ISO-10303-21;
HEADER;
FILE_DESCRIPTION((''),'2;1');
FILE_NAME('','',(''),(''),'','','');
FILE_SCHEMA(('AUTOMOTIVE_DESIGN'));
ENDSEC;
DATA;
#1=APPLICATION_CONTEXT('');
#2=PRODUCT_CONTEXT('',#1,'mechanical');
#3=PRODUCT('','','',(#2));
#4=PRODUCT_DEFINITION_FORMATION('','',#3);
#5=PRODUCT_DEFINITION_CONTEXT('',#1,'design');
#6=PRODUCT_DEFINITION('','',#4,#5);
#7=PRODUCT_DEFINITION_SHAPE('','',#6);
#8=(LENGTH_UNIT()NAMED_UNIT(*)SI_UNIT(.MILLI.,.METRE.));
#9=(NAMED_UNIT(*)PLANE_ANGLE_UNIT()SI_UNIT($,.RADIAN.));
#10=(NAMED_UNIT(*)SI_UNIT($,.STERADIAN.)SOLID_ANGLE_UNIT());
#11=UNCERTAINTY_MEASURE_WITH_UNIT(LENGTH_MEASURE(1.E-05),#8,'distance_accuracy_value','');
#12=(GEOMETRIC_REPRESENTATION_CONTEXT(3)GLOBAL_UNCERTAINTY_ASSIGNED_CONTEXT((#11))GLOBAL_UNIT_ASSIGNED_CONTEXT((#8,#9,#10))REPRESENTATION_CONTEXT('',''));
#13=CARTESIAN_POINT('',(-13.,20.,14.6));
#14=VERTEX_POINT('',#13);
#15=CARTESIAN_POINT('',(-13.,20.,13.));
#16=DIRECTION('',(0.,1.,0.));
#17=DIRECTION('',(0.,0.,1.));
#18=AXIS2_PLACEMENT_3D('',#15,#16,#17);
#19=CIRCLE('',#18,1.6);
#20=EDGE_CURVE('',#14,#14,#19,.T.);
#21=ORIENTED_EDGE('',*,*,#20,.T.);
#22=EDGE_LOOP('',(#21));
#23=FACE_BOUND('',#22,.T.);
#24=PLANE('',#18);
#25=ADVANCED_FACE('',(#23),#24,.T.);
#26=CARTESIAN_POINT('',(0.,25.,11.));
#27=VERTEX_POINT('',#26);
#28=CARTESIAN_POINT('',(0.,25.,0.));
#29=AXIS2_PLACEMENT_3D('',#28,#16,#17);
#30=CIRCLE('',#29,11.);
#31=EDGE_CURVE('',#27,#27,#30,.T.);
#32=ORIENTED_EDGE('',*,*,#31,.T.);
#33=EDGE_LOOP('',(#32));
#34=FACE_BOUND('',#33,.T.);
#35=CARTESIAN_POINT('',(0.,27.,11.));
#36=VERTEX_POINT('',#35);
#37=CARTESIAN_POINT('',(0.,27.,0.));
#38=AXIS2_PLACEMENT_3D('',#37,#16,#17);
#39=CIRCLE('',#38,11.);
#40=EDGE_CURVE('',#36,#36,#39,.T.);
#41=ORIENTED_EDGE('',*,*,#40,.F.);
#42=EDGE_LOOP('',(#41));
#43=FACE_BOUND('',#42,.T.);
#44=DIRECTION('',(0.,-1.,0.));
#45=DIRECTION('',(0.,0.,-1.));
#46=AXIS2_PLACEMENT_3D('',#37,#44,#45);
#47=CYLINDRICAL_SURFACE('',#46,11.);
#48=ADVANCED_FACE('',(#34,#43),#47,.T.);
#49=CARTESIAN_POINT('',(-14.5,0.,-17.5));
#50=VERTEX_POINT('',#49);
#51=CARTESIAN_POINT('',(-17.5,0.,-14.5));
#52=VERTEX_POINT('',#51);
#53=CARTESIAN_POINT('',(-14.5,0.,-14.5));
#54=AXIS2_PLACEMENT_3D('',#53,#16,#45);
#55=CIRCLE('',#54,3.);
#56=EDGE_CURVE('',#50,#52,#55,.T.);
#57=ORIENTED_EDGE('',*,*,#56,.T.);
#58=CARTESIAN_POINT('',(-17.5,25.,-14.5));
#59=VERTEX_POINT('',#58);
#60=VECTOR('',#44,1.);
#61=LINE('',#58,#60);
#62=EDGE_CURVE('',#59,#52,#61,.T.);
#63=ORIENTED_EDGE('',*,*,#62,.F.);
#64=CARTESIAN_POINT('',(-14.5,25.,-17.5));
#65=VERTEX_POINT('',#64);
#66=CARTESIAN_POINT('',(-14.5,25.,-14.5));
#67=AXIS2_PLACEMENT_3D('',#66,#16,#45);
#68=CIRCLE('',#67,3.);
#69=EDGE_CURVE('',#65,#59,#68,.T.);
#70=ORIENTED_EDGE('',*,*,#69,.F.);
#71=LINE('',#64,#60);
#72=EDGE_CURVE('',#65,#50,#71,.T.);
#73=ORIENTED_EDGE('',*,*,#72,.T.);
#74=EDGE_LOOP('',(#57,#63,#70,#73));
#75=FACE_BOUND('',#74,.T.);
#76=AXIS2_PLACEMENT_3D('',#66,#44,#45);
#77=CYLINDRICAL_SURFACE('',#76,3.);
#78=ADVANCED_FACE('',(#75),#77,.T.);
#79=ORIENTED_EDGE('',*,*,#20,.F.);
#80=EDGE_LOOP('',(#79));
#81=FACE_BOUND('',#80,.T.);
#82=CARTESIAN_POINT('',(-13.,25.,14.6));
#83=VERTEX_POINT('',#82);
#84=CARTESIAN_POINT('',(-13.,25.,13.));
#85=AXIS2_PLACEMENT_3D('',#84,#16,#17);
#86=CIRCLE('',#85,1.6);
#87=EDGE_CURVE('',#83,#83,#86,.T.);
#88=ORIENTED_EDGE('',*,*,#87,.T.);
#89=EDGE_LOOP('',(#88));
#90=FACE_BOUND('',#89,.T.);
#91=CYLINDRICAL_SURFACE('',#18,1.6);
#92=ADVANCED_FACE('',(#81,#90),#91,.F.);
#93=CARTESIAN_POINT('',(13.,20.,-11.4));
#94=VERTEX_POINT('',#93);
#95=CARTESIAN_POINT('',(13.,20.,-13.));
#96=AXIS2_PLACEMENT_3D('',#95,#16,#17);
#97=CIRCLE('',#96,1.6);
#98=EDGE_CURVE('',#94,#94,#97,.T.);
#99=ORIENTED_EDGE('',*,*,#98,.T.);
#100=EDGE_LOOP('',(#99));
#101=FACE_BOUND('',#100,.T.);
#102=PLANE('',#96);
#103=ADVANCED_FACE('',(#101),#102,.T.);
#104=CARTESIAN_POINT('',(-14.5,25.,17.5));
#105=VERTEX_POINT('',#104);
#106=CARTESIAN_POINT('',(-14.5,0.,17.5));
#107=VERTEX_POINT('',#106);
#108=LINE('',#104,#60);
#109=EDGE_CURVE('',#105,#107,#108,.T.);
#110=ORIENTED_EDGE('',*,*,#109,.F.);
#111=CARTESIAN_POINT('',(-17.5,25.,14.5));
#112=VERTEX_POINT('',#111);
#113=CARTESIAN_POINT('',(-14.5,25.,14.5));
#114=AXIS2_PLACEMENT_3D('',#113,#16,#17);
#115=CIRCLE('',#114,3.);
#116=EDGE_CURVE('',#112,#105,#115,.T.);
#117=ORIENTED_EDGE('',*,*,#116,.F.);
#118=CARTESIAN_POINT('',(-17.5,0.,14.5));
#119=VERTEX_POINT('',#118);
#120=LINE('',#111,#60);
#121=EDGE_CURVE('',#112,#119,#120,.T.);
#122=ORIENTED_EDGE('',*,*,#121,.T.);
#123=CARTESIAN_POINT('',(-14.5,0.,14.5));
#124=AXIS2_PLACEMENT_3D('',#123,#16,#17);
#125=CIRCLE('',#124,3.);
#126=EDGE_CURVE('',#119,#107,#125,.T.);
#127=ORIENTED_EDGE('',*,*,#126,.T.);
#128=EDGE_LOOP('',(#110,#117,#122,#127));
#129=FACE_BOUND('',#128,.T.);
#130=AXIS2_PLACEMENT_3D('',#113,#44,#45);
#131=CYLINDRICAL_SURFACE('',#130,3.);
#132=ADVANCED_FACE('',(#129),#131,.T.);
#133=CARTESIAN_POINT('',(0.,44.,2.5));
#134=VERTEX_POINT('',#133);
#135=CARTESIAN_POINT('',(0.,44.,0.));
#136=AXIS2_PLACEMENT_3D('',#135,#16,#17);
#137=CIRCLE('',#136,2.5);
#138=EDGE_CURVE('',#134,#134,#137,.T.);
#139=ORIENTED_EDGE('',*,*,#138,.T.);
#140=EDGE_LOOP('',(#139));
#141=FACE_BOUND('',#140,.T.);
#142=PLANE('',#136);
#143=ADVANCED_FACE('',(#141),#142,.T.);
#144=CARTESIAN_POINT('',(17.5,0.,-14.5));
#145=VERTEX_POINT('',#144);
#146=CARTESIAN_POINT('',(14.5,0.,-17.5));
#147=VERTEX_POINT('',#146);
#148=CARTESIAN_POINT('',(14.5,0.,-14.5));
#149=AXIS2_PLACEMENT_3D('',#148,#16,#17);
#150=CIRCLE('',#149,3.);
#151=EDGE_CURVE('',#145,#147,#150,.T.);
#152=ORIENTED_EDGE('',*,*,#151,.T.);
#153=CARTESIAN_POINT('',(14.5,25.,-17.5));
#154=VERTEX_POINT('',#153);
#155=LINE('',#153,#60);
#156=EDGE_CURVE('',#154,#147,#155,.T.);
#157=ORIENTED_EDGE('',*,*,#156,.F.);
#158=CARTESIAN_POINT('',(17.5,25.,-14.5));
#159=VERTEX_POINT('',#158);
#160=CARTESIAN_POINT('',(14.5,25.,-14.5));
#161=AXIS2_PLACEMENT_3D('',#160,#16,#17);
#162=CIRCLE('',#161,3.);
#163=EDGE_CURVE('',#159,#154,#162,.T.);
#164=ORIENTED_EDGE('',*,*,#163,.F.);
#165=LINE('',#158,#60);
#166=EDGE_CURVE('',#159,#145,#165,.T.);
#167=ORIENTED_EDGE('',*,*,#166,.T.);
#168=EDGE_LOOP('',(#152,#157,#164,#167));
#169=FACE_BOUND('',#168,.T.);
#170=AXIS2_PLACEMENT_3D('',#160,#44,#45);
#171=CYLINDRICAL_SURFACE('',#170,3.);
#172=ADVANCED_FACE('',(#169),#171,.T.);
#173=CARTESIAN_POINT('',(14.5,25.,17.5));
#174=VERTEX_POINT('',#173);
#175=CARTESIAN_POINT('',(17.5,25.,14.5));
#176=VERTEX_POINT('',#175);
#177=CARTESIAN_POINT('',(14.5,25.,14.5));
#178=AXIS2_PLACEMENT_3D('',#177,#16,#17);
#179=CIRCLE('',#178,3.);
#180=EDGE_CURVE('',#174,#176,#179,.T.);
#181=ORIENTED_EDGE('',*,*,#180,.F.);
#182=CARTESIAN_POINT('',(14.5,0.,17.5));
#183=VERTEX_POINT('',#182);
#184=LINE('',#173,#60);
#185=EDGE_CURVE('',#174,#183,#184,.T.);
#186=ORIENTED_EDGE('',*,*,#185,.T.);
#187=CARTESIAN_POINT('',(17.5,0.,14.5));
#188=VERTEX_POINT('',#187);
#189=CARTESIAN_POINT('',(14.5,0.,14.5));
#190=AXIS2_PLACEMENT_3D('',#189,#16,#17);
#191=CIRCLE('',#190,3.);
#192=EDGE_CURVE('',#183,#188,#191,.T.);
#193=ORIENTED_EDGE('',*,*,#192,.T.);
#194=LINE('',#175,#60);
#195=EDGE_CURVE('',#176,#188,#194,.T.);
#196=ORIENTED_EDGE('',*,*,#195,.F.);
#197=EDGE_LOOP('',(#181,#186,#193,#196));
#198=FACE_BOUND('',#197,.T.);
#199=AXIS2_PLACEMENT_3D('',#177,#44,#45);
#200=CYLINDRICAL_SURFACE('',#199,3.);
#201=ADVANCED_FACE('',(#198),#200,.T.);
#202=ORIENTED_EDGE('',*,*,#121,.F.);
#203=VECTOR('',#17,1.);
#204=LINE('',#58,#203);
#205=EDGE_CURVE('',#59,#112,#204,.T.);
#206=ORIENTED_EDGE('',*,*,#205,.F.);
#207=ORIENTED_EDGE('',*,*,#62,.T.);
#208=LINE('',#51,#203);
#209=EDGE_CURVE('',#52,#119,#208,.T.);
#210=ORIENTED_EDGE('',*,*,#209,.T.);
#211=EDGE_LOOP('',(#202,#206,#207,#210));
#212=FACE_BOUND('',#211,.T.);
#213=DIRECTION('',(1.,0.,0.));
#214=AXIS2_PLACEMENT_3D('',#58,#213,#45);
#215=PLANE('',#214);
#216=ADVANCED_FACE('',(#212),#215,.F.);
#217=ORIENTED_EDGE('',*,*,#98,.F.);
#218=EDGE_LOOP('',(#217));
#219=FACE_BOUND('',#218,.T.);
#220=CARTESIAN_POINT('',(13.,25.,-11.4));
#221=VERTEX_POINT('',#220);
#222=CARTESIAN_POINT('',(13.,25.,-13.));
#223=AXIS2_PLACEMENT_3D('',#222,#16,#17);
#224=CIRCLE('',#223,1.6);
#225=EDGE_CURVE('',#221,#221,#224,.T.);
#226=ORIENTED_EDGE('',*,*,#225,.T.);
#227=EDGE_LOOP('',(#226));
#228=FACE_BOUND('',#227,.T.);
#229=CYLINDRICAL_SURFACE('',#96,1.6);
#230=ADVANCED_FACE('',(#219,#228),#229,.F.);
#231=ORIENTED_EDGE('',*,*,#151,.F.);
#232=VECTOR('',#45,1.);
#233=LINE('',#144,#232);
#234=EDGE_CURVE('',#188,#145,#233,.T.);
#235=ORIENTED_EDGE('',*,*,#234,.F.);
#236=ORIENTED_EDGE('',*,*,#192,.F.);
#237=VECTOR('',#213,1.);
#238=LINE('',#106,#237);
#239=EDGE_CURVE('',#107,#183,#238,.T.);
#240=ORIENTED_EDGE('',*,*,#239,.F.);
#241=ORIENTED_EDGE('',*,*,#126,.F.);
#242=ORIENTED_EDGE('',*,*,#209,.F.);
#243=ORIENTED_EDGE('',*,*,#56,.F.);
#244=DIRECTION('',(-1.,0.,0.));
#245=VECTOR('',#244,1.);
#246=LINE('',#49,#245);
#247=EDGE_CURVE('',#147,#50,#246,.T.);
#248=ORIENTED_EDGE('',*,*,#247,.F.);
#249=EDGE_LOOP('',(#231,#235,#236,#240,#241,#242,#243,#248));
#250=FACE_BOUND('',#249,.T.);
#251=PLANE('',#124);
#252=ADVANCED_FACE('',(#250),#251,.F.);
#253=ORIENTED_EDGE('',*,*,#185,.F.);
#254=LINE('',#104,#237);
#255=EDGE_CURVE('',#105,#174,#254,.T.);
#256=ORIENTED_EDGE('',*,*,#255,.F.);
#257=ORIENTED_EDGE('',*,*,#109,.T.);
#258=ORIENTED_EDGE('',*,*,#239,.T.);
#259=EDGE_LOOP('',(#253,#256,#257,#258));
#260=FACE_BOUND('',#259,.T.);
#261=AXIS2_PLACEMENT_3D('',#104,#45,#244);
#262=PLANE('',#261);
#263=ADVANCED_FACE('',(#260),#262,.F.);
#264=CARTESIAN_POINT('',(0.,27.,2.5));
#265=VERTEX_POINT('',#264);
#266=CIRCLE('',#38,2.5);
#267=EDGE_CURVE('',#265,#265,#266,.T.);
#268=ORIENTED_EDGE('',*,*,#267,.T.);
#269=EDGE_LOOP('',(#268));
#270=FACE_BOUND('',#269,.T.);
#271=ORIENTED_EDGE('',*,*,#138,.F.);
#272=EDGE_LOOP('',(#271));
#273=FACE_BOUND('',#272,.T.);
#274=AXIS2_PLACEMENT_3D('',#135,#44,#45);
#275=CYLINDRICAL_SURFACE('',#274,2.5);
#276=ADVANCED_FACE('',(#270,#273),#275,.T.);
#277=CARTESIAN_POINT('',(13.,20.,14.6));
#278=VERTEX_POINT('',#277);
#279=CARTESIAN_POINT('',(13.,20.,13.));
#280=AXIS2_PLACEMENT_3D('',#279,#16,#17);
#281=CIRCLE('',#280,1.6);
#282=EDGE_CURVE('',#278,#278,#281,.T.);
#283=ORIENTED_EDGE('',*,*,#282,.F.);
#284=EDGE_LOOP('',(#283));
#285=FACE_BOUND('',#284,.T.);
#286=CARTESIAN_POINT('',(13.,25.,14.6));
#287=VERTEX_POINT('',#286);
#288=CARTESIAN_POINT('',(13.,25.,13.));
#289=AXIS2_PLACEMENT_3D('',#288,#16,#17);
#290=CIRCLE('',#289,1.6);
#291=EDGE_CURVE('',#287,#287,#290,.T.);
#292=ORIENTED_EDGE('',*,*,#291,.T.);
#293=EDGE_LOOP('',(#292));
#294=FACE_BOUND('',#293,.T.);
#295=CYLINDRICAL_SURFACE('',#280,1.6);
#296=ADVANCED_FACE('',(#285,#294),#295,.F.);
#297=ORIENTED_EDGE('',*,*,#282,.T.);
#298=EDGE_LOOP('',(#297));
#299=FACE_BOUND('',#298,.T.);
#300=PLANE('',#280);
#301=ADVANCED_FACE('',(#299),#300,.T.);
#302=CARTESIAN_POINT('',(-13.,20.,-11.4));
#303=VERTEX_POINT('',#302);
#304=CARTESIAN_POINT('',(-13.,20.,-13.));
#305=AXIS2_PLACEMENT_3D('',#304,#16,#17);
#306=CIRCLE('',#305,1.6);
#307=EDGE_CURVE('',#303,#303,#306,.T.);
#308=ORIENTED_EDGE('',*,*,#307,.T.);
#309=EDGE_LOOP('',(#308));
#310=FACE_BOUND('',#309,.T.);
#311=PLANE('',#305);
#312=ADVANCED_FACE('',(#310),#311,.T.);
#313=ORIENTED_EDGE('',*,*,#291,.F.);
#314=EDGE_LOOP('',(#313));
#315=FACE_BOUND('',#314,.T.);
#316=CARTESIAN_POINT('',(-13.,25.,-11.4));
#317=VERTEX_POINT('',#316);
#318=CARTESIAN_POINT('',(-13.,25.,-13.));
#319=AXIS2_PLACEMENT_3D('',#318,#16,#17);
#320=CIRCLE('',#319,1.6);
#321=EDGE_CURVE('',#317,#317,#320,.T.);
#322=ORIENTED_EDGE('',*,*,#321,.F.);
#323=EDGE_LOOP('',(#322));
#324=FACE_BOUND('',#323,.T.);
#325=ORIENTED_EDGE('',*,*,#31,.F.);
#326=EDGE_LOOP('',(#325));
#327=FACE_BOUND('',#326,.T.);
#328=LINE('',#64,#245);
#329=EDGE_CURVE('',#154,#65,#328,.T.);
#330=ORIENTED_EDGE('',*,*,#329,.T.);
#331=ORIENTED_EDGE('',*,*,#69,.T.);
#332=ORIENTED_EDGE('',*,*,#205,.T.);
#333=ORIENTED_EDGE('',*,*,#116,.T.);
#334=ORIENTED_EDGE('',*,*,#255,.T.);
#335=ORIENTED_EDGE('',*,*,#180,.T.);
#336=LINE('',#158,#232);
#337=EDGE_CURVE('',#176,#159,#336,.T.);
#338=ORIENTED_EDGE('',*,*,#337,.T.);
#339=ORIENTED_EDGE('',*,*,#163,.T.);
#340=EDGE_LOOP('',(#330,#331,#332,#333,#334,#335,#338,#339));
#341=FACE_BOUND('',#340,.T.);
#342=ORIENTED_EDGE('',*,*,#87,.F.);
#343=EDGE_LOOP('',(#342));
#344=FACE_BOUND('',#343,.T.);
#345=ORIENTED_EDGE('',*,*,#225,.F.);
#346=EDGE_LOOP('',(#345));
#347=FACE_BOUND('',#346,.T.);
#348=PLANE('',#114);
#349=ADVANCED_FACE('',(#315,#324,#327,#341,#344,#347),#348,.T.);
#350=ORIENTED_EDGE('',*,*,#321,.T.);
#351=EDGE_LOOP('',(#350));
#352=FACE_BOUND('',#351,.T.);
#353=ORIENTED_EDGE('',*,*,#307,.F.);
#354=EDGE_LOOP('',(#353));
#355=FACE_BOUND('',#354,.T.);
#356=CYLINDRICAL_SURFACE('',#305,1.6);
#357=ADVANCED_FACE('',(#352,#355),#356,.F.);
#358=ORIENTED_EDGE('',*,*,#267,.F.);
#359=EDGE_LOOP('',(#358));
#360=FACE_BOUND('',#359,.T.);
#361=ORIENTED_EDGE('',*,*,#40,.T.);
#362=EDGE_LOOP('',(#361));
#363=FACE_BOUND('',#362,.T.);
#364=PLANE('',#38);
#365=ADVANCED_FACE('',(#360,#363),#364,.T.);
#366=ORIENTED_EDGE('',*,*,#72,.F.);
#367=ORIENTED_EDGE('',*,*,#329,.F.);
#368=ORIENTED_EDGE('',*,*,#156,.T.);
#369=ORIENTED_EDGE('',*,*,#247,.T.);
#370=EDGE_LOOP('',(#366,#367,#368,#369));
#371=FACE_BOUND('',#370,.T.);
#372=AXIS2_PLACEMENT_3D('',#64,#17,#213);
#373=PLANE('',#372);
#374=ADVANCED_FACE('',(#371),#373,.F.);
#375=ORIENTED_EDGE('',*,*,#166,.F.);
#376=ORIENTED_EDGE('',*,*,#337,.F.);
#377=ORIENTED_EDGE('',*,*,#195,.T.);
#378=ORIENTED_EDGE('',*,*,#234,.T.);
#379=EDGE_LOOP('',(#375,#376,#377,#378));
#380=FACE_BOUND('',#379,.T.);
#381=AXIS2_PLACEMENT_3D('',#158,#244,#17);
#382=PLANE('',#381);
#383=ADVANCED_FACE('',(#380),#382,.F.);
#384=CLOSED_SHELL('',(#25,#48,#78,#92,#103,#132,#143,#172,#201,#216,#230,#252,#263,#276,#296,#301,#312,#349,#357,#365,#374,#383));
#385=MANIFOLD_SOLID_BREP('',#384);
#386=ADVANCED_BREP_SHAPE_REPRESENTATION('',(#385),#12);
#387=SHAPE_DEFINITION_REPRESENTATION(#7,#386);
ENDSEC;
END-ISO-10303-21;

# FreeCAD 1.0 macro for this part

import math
import FreeCAD as App
import Part
import Sketcher
Q = App.Units.Quantity

doc = App.newDocument("Part")
body = doc.addObject("PartDesign::Body", "Body")

# Sketch on XZ plane
sketch1 = doc.addObject("Sketcher::SketchObject", "Sketch")
body.addObject(sketch1)
sketch1.AttachmentSupport = (doc.XZ_Plane, [""])
sketch1.MapMode = "FlatFace"
sketch1.addGeometry(Part.LineSegment(App.Vector(14.5, -17.5, 0), App.Vector(-14.5, -17.5, 0)), False)
sketch1.addGeometry(Part.ArcOfCircle(Part.Circle(App.Vector(-14.5, -14.5, 0), App.Vector(0, 0, 1), 3), math.radians(180), math.radians(270)), False)
sketch1.addGeometry(Part.LineSegment(App.Vector(-17.5, -14.5, 0), App.Vector(-17.5, 14.5, 0)), False)
sketch1.addGeometry(Part.ArcOfCircle(Part.Circle(App.Vector(-14.5, 14.5, 0), App.Vector(0, 0, 1), 3), math.radians(90), math.radians(180)), False)
sketch1.addGeometry(Part.LineSegment(App.Vector(-14.5, 17.5, 0), App.Vector(14.5, 17.5, 0)), False)
sketch1.addGeometry(Part.ArcOfCircle(Part.Circle(App.Vector(14.5, 14.5, 0), App.Vector(0, 0, 1), 3), math.radians(0), math.radians(90)), False)
sketch1.addGeometry(Part.LineSegment(App.Vector(17.5, 14.5, 0), App.Vector(17.5, -14.5, 0)), False)
sketch1.addGeometry(Part.ArcOfCircle(Part.Circle(App.Vector(14.5, -14.5, 0), App.Vector(0, 0, 1), 3), math.radians(-90), math.radians(0)), False)
sketch1.addConstraint(Sketcher.Constraint("Tangent", 0, 2, 1, 2))
sketch1.addConstraint(Sketcher.Constraint("Tangent", 1, 1, 2, 1))
sketch1.addConstraint(Sketcher.Constraint("Tangent", 2, 2, 3, 2))
sketch1.addConstraint(Sketcher.Constraint("Tangent", 3, 1, 4, 1))
sketch1.addConstraint(Sketcher.Constraint("Tangent", 4, 2, 5, 2))
sketch1.addConstraint(Sketcher.Constraint("Tangent", 5, 1, 6, 1))
sketch1.addConstraint(Sketcher.Constraint("Tangent", 6, 2, 7, 2))
sketch1.addConstraint(Sketcher.Constraint("Tangent", 7, 1, 0, 1))
sketch1.addConstraint(Sketcher.Constraint("Horizontal", 0))
sketch1.addConstraint(Sketcher.Constraint("Vertical", 2))
sketch1.addConstraint(Sketcher.Constraint("Horizontal", 4))
sketch1.addConstraint(Sketcher.Constraint("Vertical", 6))
sketch1.addConstraint(Sketcher.Constraint("Equal", 1, 3))
sketch1.addConstraint(Sketcher.Constraint("Equal", 3, 5))
sketch1.addConstraint(Sketcher.Constraint("Equal", 5, 7))
sketch1.addConstraint(Sketcher.Constraint("Symmetric", 1, 3, 5, 3, -1, 1))
sketch1.addConstraint(Sketcher.Constraint("Equal", 4, 2))
sketch1.addConstraint(Sketcher.Constraint("Radius", 1, Q("3 mm")))
sketch1.addConstraint(Sketcher.Constraint("DistanceX", 0, 2, 0, 1, Q("29 mm")))
pad1 = doc.addObject("PartDesign::Pad", "Pad")
body.addObject(pad1)
pad1.Profile = sketch1
pad1.Length = 25
pad1.Reversed = True

# Sketch on XZ plane
sketch2 = doc.addObject("Sketcher::SketchObject", "Sketch001")
body.addObject(sketch2)
sketch2.AttachmentSupport = (doc.XZ_Plane, [""])
sketch2.MapMode = "FlatFace"
sketch2.AttachmentOffset = App.Placement(App.Vector(0, 0, -25), App.Rotation())
sketch2.addGeometry(Part.Circle(App.Vector(0, 0, 0), App.Vector(0, 0, 1), 11), False)
sketch2.addConstraint(Sketcher.Constraint("Coincident", 0, 3, -1, 1))
sketch2.addConstraint(Sketcher.Constraint("Diameter", 0, Q("22 mm")))
pad2 = doc.addObject("PartDesign::Pad", "Pad001")
body.addObject(pad2)
pad2.Profile = sketch2
pad2.Length = 2
pad2.Reversed = True

# Sketch on XZ plane
sketch3 = doc.addObject("Sketcher::SketchObject", "Sketch002")
body.addObject(sketch3)
sketch3.AttachmentSupport = (doc.XZ_Plane, [""])
sketch3.MapMode = "FlatFace"
sketch3.AttachmentOffset = App.Placement(App.Vector(0, 0, -27), App.Rotation())
sketch3.addGeometry(Part.Circle(App.Vector(0, 0, 0), App.Vector(0, 0, 1), 2.5), False)
sketch3.addConstraint(Sketcher.Constraint("Coincident", 0, 3, -1, 1))
sketch3.addConstraint(Sketcher.Constraint("Diameter", 0, Q("5 mm")))
pad3 = doc.addObject("PartDesign::Pad", "Pad002")
body.addObject(pad3)
pad3.Profile = sketch3
pad3.Length = 17
pad3.Reversed = True

# Sketch on XZ plane
sketch4 = doc.addObject("Sketcher::SketchObject", "Sketch003")
body.addObject(sketch4)
sketch4.AttachmentSupport = (doc.XZ_Plane, [""])
sketch4.MapMode = "FlatFace"
sketch4.AttachmentOffset = App.Placement(App.Vector(0, 0, -25), App.Rotation())
sketch4.addGeometry(Part.Circle(App.Vector(-13, -13, 0), App.Vector(0, 0, 1), 1.6), False)
sketch4.addGeometry(Part.Circle(App.Vector(13, -13, 0), App.Vector(0, 0, 1), 1.6), False)
sketch4.addGeometry(Part.Circle(App.Vector(13, 13, 0), App.Vector(0, 0, 1), 1.6), False)
sketch4.addGeometry(Part.Circle(App.Vector(-13, 13, 0), App.Vector(0, 0, 1), 1.6), False)
sketch4.addConstraint(Sketcher.Constraint("Equal", 0, 1))
sketch4.addConstraint(Sketcher.Constraint("Equal", 1, 2))
sketch4.addConstraint(Sketcher.Constraint("Equal", 2, 3))
sketch4.addConstraint(Sketcher.Constraint("Symmetric", 0, 3, 2, 3, -1, 1))
sketch4.addConstraint(Sketcher.Constraint("Symmetric", 1, 3, 3, 3, -1, 1))
sketch4.addConstraint(Sketcher.Constraint("Symmetric", 0, 3, 1, 3, -2))
sketch4.addConstraint(Sketcher.Constraint("Diameter", 0, Q("3.2 mm")))
sketch4.addConstraint(Sketcher.Constraint("DistanceX", 0, 3, -1, 1, Q("13 mm")))
sketch4.addConstraint(Sketcher.Constraint("DistanceY", 0, 3, -1, 1, Q("13 mm")))
pocket1 = doc.addObject("PartDesign::Pocket", "Pocket")
body.addObject(pocket1)
pocket1.Profile = sketch4
pocket1.Length = 5
pocket1.Reversed = True

doc.recompute()
